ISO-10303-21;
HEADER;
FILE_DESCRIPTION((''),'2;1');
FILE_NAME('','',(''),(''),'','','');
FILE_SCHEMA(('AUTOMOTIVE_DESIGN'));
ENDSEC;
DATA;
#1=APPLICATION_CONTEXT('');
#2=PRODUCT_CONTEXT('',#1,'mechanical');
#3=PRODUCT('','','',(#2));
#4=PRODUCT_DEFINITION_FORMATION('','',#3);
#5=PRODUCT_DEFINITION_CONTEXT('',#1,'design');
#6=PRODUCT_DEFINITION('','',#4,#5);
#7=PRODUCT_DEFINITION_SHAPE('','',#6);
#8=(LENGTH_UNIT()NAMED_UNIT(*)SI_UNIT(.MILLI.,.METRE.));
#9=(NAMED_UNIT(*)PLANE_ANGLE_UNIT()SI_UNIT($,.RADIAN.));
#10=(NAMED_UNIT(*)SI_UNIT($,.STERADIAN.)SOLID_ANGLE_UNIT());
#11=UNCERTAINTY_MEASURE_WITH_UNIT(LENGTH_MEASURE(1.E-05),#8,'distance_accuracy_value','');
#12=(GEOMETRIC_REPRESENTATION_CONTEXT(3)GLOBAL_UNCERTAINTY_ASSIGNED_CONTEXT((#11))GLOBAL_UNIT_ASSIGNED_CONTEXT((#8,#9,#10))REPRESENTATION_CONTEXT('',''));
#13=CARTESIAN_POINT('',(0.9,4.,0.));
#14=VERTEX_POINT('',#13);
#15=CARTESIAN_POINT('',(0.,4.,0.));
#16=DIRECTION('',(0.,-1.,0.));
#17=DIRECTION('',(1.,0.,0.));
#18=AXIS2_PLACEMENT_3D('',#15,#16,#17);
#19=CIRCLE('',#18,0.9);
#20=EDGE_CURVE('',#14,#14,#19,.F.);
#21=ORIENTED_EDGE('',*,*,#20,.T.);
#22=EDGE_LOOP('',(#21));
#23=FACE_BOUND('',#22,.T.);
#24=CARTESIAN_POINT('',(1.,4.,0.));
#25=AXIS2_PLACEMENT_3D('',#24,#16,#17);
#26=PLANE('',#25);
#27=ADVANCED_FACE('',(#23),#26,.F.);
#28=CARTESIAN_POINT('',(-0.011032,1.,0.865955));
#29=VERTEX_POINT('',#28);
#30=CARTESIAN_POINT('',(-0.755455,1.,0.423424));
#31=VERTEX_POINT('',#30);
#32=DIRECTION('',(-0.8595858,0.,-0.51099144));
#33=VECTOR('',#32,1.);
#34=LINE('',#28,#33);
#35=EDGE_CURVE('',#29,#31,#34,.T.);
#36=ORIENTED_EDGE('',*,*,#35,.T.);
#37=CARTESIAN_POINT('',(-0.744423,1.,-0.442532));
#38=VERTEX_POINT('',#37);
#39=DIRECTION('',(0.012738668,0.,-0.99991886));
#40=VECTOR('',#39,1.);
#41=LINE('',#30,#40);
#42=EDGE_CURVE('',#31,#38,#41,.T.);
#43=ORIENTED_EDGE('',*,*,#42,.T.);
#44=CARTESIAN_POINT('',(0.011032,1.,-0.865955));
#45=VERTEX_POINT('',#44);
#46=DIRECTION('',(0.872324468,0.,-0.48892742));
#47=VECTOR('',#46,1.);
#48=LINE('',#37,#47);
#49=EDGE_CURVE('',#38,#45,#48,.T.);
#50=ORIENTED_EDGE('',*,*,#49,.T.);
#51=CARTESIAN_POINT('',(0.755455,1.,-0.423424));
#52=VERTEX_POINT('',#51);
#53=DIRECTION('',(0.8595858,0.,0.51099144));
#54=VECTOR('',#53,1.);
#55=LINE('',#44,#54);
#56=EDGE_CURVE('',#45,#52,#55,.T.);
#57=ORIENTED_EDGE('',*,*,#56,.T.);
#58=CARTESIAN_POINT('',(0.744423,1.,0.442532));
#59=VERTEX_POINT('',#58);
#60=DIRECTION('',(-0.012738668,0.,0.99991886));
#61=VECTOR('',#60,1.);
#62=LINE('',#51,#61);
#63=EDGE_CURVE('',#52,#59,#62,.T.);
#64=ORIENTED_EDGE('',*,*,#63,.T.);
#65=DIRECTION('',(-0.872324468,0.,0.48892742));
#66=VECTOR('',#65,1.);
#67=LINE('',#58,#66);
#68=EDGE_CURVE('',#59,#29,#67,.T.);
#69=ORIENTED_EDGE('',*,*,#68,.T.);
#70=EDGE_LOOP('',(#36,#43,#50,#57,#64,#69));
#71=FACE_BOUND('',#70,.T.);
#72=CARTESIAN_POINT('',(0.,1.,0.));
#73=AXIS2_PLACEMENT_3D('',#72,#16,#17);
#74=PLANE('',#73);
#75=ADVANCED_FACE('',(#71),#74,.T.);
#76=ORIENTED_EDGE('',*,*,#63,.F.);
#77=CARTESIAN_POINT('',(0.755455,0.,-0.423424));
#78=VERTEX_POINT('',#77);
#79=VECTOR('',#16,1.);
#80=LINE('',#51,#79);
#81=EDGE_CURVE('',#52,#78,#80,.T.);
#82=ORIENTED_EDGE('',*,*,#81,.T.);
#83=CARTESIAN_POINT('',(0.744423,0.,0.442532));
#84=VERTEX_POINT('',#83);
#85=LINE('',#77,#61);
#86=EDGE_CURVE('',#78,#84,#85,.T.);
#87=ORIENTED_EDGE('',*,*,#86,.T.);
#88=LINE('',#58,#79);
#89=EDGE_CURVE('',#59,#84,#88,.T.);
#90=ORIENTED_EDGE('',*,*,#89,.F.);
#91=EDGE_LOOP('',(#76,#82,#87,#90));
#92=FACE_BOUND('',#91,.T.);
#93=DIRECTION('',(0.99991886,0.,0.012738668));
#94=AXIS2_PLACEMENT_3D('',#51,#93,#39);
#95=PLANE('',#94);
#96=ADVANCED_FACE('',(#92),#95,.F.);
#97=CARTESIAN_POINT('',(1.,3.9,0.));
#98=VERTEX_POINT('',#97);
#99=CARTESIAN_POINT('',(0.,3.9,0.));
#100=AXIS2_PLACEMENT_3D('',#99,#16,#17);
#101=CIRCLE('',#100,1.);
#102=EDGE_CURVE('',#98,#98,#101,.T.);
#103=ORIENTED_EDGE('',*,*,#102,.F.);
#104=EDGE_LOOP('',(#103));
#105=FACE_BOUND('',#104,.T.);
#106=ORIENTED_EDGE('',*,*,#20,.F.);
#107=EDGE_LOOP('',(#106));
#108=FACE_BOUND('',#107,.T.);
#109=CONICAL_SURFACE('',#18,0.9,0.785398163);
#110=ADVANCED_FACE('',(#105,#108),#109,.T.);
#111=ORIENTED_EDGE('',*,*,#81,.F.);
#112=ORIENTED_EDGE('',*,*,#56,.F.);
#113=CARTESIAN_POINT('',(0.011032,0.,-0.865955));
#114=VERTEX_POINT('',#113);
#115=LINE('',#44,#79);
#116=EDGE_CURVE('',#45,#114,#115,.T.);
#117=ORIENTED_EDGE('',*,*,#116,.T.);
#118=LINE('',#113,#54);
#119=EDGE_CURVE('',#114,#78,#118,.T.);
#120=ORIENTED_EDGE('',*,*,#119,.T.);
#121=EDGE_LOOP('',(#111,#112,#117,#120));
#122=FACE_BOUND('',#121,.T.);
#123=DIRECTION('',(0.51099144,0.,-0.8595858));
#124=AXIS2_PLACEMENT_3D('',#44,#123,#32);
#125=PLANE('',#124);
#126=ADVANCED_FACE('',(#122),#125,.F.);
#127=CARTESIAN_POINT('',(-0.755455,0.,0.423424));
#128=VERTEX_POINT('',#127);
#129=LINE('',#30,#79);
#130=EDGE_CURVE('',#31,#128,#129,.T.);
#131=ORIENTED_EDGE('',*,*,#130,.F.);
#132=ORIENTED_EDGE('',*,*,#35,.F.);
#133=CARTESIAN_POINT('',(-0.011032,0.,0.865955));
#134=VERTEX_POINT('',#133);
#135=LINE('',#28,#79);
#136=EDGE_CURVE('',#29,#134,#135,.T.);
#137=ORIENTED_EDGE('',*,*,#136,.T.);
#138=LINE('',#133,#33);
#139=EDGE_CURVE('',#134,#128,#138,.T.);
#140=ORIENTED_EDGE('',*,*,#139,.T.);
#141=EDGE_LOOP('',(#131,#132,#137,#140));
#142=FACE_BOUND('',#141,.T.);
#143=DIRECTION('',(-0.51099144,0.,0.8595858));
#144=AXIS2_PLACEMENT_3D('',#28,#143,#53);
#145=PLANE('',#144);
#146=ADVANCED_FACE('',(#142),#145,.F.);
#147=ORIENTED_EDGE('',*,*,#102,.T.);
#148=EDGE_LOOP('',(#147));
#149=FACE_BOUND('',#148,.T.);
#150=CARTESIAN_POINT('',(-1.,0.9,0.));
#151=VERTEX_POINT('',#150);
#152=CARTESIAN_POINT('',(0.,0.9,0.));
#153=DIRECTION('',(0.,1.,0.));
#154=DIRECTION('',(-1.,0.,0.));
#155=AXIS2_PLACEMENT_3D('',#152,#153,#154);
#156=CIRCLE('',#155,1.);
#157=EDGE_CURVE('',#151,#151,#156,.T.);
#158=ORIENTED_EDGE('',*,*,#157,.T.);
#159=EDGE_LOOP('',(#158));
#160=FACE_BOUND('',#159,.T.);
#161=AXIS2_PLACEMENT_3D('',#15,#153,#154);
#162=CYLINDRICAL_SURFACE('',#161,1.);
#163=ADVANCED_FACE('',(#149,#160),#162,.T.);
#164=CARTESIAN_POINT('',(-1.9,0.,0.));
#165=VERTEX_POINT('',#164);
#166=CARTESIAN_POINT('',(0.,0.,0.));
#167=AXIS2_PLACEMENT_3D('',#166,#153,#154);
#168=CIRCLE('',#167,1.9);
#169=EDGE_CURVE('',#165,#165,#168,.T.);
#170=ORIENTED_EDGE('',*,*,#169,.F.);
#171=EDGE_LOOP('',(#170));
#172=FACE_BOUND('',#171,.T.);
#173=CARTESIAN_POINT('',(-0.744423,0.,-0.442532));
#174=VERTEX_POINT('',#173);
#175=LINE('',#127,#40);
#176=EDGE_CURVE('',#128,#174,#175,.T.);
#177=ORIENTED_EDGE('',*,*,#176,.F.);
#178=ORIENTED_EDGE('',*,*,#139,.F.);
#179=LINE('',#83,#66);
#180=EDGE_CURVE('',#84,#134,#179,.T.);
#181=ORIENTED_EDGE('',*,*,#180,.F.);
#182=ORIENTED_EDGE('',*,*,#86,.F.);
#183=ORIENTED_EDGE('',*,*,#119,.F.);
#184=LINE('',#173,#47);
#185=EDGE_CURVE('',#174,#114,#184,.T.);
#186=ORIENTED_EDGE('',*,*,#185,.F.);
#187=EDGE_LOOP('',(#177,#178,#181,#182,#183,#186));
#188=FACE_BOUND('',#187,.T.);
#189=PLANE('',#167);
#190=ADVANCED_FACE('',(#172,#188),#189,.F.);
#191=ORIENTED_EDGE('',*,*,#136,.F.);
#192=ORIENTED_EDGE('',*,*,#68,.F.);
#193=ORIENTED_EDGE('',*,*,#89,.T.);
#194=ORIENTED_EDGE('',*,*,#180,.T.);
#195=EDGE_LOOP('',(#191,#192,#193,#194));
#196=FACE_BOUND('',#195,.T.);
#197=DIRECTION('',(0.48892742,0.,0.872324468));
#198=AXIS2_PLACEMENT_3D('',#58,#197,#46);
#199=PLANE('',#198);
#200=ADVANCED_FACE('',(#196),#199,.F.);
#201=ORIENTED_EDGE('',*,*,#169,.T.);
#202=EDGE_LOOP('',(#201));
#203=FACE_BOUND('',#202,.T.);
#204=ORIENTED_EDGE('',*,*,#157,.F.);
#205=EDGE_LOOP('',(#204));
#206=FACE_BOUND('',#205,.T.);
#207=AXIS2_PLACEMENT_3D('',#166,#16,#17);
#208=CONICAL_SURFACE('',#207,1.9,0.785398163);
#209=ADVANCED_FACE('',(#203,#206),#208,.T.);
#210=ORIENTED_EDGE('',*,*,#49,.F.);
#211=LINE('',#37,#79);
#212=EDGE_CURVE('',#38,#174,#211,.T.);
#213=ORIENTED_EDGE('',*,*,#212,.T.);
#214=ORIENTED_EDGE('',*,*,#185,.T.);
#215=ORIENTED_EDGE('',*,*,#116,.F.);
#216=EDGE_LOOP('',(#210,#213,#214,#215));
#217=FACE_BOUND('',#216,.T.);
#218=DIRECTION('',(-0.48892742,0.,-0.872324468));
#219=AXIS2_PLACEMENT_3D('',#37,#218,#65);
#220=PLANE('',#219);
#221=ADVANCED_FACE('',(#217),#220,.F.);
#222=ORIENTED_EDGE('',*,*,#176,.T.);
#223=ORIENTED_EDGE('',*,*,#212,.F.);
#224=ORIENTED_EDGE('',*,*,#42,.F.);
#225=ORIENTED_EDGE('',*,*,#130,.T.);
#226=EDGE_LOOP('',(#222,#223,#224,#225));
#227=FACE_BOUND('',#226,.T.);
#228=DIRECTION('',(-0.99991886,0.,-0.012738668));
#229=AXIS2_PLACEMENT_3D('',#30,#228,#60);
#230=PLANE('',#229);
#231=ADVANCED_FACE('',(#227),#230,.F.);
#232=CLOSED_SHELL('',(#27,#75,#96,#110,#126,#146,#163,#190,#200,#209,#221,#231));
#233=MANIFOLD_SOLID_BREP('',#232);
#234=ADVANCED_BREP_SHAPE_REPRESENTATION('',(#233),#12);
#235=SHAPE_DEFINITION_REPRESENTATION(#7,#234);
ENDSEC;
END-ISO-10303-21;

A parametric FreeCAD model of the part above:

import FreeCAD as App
import Part
import Sketcher
Q = App.Units.Quantity


def edges_at(feature, points):
    """Names of the edges that pass closest to the given points."""
    edges = feature.Shape.Edges
    near = lambda p: min(range(len(edges)), key=lambda i: edges[i].distToShape(Part.Vertex(*p))[0])
    return sorted({f"Edge{near(p) + 1}" for p in points})

doc = App.newDocument("Part")
body = doc.addObject("PartDesign::Body", "Body")

# Sketch on XY plane
sketch1 = body.newObject("Sketcher::SketchObject", "Sketch")
sketch1.AttachmentSupport = (doc.getObject("XY_Plane"), [""])
sketch1.MapMode = "FlatFace"
sketch1.addGeometry([
    Part.LineSegment(App.Vector(0, 0, 0), App.Vector(1.9, 0, 0)),  # 0
    Part.LineSegment(App.Vector(1.9, 0, 0), App.Vector(1, 0.9, 0)),  # 1
    Part.LineSegment(App.Vector(1, 0.9, 0), App.Vector(1, 4, 0)),  # 2
    Part.LineSegment(App.Vector(1, 4, 0), App.Vector(0, 4, 0)),  # 3
    Part.LineSegment(App.Vector(0, 4, 0), App.Vector(0, 0, 0)),  # 4
], False)
sketch1.addConstraint([
    Sketcher.Constraint("Coincident", 0, 2, 1, 1),
    Sketcher.Constraint("Coincident", 1, 2, 2, 1),
    Sketcher.Constraint("Coincident", 2, 2, 3, 1),
    Sketcher.Constraint("Coincident", 3, 2, 4, 1),
    Sketcher.Constraint("Coincident", 4, 2, 0, 1),
    Sketcher.Constraint("Horizontal", 0),
    Sketcher.Constraint("Vertical", 2),
    Sketcher.Constraint("Horizontal", 3),
    Sketcher.Constraint("Vertical", 4),
    Sketcher.Constraint("Coincident", 4, 2, -1, 1),
    Sketcher.Constraint("DistanceX", 3, 2, 3, 1, 1.0),
    Sketcher.Constraint("DistanceY", 4, 2, 4, 1, 4.0),
    Sketcher.Constraint("Angle", 1, Q("135 deg")),
    Sketcher.Constraint("DistanceX", 0, 1, 0, 2, 1.9),
])
revolution = body.newObject("PartDesign::Revolution", "Revolution")
revolution.Profile = sketch1
revolution.ReferenceAxis = (sketch1, ["V_Axis"])
revolution.Angle = 360

# Sketch on XZ plane
sketch2 = body.newObject("Sketcher::SketchObject", "Sketch001")
sketch2.AttachmentSupport = (doc.getObject("XZ_Plane"), [""])
sketch2.MapMode = "FlatFace"
sketch2.addGeometry([
    Part.LineSegment(App.Vector(0.755455, -0.423424, 0), App.Vector(0.744423, 0.442532, 0)),  # 0
    Part.LineSegment(App.Vector(0.744423, 0.442532, 0), App.Vector(-0.011032, 0.865955, 0)),  # 1
    Part.LineSegment(App.Vector(-0.011032, 0.865955, 0), App.Vector(-0.755455, 0.423424, 0)),  # 2
    Part.LineSegment(App.Vector(-0.755455, 0.423424, 0), App.Vector(-0.744423, -0.442532, 0)),  # 3
    Part.LineSegment(App.Vector(-0.744423, -0.442532, 0), App.Vector(0.011032, -0.865955, 0)),  # 4
    Part.LineSegment(App.Vector(0.011032, -0.865955, 0), App.Vector(0.755455, -0.423424, 0)),  # 5
], False)
sketch2.addConstraint([
    Sketcher.Constraint("Coincident", 0, 2, 1, 1),
    Sketcher.Constraint("Coincident", 1, 2, 2, 1),
    Sketcher.Constraint("Coincident", 2, 2, 3, 1),
    Sketcher.Constraint("Coincident", 3, 2, 4, 1),
    Sketcher.Constraint("Coincident", 4, 2, 5, 1),
    Sketcher.Constraint("Coincident", 5, 2, 0, 1),
    Sketcher.Constraint("DistanceY", -1, 1, 0, 2, 0.442532),
    Sketcher.Constraint("DistanceY", 3, 2, -1, 1, 0.442532),
    Sketcher.Constraint("DistanceY", 2, 2, 1, 2, 0.442532),
    Sketcher.Constraint("DistanceX", 2, 2, 0, 2, 1.499878),
    Sketcher.Constraint("DistanceY", 2, 2, 0, 2, 0.019108),
    Sketcher.Constraint("DistanceX", 3, 2, 1, 2, 0.733391),
    Sketcher.Constraint("DistanceY", 4, 2, 2, 2, 1.289379),
    Sketcher.Constraint("DistanceX", 4, 2, 0, 2, 0.733391),
    Sketcher.Constraint("DistanceY", 4, 2, 5, 2, 0.442532),
    Sketcher.Constraint("DistanceX", 3, 2, 5, 2, 1.499878),
    Sketcher.Constraint("DistanceX", 2, 2, 5, 2, 1.51091),
    Sketcher.Constraint("DistanceX", -1, 1, 0, 2, 0.744423),
])
pocket1 = body.newObject("PartDesign::Pocket", "Pocket")
pocket1.Profile = sketch2
pocket1.Length = 1
doc.recompute()

chamfer = body.newObject("PartDesign::Chamfer", "Chamfer")
chamfer.Base = (pocket1, edges_at(pocket1, [(-1, 4, 0)]))
chamfer.Size = 0.1

doc.recompute()
